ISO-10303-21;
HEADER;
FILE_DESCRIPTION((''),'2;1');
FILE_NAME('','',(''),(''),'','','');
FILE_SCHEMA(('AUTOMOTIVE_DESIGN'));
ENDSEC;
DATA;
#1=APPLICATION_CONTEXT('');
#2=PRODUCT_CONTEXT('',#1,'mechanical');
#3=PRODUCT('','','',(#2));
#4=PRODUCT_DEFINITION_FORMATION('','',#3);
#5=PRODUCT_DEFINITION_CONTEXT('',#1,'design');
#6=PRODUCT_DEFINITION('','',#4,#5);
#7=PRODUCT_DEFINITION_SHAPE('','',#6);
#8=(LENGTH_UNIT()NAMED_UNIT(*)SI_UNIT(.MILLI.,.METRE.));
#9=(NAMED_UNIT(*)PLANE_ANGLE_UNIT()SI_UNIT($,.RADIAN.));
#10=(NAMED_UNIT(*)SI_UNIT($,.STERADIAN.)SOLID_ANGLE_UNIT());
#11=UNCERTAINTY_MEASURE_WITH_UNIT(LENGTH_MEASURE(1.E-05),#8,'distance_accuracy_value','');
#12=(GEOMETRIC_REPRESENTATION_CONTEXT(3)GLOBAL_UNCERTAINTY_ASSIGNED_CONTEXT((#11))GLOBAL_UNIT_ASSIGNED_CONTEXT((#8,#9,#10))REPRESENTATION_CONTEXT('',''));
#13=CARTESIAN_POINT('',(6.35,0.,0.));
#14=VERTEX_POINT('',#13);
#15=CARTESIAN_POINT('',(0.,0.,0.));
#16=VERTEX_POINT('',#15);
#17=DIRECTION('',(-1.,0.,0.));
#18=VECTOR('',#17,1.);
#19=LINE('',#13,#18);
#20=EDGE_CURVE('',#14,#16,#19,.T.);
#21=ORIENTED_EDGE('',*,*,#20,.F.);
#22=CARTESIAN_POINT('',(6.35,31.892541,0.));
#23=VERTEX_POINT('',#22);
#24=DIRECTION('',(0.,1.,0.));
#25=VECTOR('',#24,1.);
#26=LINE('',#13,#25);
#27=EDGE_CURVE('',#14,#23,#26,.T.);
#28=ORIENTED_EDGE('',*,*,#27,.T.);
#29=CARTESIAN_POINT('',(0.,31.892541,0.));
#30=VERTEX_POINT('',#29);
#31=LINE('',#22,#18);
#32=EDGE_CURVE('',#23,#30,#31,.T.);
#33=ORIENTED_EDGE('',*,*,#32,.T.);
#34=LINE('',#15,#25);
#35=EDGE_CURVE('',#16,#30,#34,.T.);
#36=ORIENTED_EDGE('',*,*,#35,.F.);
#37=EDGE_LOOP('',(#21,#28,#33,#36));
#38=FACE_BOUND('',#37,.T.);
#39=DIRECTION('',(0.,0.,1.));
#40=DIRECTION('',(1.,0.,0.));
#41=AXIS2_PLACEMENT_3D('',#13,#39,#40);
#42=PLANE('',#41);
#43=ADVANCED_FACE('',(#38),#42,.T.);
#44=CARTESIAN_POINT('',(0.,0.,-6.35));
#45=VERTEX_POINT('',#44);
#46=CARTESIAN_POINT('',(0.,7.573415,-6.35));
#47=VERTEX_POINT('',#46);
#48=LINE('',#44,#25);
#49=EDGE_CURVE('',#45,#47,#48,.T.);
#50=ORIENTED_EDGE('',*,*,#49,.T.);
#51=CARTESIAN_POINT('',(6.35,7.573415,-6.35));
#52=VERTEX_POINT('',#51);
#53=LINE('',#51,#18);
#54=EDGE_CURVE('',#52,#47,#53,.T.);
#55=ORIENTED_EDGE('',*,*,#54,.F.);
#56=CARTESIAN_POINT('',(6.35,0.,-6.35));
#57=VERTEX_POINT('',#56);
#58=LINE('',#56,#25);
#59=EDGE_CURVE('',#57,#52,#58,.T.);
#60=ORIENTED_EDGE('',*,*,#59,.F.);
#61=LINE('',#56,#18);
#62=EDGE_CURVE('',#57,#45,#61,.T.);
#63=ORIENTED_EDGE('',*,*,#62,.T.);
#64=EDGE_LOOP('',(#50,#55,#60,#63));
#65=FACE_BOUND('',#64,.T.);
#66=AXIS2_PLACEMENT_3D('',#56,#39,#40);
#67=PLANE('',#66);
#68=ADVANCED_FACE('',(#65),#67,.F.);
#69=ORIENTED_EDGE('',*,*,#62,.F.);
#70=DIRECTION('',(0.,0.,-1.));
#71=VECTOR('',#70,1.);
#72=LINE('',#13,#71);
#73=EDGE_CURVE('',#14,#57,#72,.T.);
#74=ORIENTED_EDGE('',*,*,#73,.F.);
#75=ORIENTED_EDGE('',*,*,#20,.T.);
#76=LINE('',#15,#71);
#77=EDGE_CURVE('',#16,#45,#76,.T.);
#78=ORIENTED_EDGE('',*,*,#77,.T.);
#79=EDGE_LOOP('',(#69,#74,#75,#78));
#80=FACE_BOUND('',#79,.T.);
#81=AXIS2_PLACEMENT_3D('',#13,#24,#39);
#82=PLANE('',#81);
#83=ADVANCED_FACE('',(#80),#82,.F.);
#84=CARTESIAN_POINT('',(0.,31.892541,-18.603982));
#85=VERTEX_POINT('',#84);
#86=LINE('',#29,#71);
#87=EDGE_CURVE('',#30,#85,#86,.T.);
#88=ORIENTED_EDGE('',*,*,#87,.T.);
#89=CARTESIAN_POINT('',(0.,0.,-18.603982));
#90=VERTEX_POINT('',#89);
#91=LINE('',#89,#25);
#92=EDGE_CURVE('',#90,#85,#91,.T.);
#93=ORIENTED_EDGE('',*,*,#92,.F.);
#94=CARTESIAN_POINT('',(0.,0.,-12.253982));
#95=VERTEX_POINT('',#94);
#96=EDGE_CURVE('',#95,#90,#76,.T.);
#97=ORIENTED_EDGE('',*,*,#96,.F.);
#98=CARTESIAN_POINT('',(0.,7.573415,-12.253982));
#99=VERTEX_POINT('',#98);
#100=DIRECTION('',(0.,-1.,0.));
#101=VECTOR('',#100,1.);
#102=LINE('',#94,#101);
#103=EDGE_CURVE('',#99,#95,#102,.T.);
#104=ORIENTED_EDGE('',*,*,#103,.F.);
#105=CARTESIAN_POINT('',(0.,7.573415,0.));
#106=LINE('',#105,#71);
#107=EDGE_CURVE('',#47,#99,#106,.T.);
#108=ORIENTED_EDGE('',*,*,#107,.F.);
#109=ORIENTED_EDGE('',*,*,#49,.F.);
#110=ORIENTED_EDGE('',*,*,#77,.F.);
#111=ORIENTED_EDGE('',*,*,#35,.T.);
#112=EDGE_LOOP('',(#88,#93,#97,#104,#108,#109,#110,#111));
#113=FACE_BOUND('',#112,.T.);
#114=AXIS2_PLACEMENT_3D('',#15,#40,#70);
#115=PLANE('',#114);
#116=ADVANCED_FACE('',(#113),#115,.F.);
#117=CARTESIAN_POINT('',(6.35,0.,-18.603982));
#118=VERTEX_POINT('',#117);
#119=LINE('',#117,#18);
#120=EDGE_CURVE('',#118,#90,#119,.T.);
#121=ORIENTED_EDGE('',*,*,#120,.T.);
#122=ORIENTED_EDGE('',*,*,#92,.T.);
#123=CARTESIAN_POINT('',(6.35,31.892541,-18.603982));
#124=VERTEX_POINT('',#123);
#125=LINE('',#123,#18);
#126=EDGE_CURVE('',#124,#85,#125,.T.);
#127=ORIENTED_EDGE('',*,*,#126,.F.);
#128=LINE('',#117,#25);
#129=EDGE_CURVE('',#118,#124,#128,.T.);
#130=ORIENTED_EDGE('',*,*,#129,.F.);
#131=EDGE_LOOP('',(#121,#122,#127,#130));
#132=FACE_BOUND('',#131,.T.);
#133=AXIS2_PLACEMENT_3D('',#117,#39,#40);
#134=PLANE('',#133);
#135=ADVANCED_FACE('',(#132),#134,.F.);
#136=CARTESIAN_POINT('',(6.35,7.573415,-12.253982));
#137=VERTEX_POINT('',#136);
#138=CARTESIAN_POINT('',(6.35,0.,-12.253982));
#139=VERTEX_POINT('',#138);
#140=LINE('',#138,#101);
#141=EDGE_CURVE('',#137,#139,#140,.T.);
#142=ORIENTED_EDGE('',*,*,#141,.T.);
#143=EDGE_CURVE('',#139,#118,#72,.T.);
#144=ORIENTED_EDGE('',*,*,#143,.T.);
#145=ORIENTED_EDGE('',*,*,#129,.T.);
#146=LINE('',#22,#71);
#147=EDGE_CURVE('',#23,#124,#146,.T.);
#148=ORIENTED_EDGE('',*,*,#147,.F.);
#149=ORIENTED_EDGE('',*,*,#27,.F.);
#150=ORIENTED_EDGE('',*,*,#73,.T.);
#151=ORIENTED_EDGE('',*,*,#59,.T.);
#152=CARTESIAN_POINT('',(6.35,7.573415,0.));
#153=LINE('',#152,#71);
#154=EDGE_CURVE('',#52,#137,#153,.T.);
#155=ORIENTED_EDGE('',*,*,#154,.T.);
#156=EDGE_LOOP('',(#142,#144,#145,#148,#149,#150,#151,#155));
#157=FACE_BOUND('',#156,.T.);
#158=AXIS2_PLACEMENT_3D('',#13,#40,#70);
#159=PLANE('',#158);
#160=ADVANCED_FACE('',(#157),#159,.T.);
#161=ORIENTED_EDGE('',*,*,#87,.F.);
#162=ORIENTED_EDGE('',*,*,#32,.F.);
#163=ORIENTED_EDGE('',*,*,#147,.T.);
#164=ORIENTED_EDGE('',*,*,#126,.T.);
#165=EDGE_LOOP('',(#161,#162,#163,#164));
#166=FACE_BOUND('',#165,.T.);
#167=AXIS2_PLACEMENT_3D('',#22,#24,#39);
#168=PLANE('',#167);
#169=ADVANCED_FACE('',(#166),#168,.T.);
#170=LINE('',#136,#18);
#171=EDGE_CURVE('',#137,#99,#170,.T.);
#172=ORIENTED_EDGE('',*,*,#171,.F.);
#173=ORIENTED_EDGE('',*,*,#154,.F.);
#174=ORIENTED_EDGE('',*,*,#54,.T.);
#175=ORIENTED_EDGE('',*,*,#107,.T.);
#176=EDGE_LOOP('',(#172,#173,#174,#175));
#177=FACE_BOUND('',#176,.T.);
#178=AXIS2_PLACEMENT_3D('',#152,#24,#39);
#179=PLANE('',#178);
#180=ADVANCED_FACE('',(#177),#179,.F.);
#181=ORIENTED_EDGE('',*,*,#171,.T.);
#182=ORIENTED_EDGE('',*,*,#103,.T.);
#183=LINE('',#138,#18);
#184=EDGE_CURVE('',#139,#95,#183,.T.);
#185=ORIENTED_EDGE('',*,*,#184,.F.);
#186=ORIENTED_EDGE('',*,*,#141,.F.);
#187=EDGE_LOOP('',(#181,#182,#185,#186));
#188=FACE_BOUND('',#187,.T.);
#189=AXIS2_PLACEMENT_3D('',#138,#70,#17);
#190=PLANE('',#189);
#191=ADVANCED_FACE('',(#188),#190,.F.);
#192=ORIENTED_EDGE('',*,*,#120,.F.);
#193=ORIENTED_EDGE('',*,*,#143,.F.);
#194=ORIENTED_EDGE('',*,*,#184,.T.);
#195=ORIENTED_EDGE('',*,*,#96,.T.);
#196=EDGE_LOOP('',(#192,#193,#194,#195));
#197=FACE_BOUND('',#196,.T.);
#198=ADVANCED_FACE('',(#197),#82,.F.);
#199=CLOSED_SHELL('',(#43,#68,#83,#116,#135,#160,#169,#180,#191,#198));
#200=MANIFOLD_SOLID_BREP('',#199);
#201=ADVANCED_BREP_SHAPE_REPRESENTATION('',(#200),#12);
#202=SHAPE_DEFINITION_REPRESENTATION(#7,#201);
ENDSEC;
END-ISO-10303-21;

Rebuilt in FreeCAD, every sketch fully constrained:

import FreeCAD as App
import Part
import Sketcher
from FreeCAD import Vector
Q = App.Units.Quantity

doc = App.newDocument("Part")
params = doc.addObject("Spreadsheet::Sheet", "Params")
for row, (alias, value) in enumerate([
    ("sketch1_height", "0.25 in"),
    ("pad1_length", "0.25 in"),
], start=1):
    params.set(f"A{row}", alias)
    params.set(f"B{row}", "=" + value)
    params.setAlias(f"B{row}", alias)

body = doc.addObject("PartDesign::Body", "Body")

sketch1 = body.newObject("Sketcher::SketchObject", "Sketch")
sketch1.AttachmentSupport = (doc.getObject("YZ_Plane"), [""])
sketch1.MapMode = "FlatFace"
sketch1.addGeometry(Part.LineSegment(Vector(0, 0, 0), Vector(0, -6, 0)), False)
sketch1.addGeometry(Part.LineSegment(Vector(0, -6, 0), Vector(8, -6, 0)), False)
sketch1.addGeometry(Part.LineSegment(Vector(8, -6, 0), Vector(8, -12, 0)), False)
sketch1.addGeometry(Part.LineSegment(Vector(8, -12, 0), Vector(0, -12, 0)), False)
sketch1.addGeometry(Part.LineSegment(Vector(0, -12, 0), Vector(0, -19, 0)), False)
sketch1.addGeometry(Part.LineSegment(Vector(0, -19, 0), Vector(32, -19, 0)), False)
sketch1.addGeometry(Part.LineSegment(Vector(32, -19, 0), Vector(32, 0, 0)), False)
sketch1.addGeometry(Part.LineSegment(Vector(32, 0, 0), Vector(0, 0, 0)), False)
sketch1.addConstraint(Sketcher.Constraint("Coincident", 0, 2, 1, 1))
sketch1.addConstraint(Sketcher.Constraint("Coincident", 1, 2, 2, 1))
sketch1.addConstraint(Sketcher.Constraint("Coincident", 2, 2, 3, 1))
sketch1.addConstraint(Sketcher.Constraint("Coincident", 3, 2, 4, 1))
sketch1.addConstraint(Sketcher.Constraint("Coincident", 4, 2, 5, 1))
sketch1.addConstraint(Sketcher.Constraint("Coincident", 5, 2, 6, 1))
sketch1.addConstraint(Sketcher.Constraint("Coincident", 6, 2, 7, 1))
sketch1.addConstraint(Sketcher.Constraint("Coincident", 7, 2, 0, 1))
sketch1.addConstraint(Sketcher.Constraint("Vertical", 0))
sketch1.addConstraint(Sketcher.Constraint("Horizontal", 1))
sketch1.addConstraint(Sketcher.Constraint("Vertical", 2))
sketch1.addConstraint(Sketcher.Constraint("Horizontal", 3))
sketch1.addConstraint(Sketcher.Constraint("Vertical", 4))
sketch1.addConstraint(Sketcher.Constraint("Horizontal", 5))
sketch1.addConstraint(Sketcher.Constraint("Vertical", 6))
sketch1.addConstraint(Sketcher.Constraint("Horizontal", 7))
sketch1.addConstraint(Sketcher.Constraint("Coincident", 7, 2, -1, 1))
sketch1.addConstraint(Sketcher.Constraint("PointOnObject", 3, 2, -2))
sketch1.addConstraint(Sketcher.Constraint("Equal", 0, 4))
sketch1.addConstraint(Sketcher.Constraint("DistanceY", 0, 2, 0, 1, Q("0.25 in")))
sketch1.addConstraint(Sketcher.Constraint("DistanceX", 5, 1, 5, 2, 31.892541))
sketch1.addConstraint(Sketcher.Constraint("DistanceX", 1, 1, 1, 2, 7.573415))
sketch1.addConstraint(Sketcher.Constraint("DistanceY", 2, 2, 2, 1, 5.903982))
sketch1.setExpression("Constraints[19]", "Params.sketch1_height")
pad1 = body.newObject("PartDesign::Pad", "Pad")
pad1.Profile = sketch1
pad1.setExpression("Length", "Params.pad1_length")

doc.recompute()
